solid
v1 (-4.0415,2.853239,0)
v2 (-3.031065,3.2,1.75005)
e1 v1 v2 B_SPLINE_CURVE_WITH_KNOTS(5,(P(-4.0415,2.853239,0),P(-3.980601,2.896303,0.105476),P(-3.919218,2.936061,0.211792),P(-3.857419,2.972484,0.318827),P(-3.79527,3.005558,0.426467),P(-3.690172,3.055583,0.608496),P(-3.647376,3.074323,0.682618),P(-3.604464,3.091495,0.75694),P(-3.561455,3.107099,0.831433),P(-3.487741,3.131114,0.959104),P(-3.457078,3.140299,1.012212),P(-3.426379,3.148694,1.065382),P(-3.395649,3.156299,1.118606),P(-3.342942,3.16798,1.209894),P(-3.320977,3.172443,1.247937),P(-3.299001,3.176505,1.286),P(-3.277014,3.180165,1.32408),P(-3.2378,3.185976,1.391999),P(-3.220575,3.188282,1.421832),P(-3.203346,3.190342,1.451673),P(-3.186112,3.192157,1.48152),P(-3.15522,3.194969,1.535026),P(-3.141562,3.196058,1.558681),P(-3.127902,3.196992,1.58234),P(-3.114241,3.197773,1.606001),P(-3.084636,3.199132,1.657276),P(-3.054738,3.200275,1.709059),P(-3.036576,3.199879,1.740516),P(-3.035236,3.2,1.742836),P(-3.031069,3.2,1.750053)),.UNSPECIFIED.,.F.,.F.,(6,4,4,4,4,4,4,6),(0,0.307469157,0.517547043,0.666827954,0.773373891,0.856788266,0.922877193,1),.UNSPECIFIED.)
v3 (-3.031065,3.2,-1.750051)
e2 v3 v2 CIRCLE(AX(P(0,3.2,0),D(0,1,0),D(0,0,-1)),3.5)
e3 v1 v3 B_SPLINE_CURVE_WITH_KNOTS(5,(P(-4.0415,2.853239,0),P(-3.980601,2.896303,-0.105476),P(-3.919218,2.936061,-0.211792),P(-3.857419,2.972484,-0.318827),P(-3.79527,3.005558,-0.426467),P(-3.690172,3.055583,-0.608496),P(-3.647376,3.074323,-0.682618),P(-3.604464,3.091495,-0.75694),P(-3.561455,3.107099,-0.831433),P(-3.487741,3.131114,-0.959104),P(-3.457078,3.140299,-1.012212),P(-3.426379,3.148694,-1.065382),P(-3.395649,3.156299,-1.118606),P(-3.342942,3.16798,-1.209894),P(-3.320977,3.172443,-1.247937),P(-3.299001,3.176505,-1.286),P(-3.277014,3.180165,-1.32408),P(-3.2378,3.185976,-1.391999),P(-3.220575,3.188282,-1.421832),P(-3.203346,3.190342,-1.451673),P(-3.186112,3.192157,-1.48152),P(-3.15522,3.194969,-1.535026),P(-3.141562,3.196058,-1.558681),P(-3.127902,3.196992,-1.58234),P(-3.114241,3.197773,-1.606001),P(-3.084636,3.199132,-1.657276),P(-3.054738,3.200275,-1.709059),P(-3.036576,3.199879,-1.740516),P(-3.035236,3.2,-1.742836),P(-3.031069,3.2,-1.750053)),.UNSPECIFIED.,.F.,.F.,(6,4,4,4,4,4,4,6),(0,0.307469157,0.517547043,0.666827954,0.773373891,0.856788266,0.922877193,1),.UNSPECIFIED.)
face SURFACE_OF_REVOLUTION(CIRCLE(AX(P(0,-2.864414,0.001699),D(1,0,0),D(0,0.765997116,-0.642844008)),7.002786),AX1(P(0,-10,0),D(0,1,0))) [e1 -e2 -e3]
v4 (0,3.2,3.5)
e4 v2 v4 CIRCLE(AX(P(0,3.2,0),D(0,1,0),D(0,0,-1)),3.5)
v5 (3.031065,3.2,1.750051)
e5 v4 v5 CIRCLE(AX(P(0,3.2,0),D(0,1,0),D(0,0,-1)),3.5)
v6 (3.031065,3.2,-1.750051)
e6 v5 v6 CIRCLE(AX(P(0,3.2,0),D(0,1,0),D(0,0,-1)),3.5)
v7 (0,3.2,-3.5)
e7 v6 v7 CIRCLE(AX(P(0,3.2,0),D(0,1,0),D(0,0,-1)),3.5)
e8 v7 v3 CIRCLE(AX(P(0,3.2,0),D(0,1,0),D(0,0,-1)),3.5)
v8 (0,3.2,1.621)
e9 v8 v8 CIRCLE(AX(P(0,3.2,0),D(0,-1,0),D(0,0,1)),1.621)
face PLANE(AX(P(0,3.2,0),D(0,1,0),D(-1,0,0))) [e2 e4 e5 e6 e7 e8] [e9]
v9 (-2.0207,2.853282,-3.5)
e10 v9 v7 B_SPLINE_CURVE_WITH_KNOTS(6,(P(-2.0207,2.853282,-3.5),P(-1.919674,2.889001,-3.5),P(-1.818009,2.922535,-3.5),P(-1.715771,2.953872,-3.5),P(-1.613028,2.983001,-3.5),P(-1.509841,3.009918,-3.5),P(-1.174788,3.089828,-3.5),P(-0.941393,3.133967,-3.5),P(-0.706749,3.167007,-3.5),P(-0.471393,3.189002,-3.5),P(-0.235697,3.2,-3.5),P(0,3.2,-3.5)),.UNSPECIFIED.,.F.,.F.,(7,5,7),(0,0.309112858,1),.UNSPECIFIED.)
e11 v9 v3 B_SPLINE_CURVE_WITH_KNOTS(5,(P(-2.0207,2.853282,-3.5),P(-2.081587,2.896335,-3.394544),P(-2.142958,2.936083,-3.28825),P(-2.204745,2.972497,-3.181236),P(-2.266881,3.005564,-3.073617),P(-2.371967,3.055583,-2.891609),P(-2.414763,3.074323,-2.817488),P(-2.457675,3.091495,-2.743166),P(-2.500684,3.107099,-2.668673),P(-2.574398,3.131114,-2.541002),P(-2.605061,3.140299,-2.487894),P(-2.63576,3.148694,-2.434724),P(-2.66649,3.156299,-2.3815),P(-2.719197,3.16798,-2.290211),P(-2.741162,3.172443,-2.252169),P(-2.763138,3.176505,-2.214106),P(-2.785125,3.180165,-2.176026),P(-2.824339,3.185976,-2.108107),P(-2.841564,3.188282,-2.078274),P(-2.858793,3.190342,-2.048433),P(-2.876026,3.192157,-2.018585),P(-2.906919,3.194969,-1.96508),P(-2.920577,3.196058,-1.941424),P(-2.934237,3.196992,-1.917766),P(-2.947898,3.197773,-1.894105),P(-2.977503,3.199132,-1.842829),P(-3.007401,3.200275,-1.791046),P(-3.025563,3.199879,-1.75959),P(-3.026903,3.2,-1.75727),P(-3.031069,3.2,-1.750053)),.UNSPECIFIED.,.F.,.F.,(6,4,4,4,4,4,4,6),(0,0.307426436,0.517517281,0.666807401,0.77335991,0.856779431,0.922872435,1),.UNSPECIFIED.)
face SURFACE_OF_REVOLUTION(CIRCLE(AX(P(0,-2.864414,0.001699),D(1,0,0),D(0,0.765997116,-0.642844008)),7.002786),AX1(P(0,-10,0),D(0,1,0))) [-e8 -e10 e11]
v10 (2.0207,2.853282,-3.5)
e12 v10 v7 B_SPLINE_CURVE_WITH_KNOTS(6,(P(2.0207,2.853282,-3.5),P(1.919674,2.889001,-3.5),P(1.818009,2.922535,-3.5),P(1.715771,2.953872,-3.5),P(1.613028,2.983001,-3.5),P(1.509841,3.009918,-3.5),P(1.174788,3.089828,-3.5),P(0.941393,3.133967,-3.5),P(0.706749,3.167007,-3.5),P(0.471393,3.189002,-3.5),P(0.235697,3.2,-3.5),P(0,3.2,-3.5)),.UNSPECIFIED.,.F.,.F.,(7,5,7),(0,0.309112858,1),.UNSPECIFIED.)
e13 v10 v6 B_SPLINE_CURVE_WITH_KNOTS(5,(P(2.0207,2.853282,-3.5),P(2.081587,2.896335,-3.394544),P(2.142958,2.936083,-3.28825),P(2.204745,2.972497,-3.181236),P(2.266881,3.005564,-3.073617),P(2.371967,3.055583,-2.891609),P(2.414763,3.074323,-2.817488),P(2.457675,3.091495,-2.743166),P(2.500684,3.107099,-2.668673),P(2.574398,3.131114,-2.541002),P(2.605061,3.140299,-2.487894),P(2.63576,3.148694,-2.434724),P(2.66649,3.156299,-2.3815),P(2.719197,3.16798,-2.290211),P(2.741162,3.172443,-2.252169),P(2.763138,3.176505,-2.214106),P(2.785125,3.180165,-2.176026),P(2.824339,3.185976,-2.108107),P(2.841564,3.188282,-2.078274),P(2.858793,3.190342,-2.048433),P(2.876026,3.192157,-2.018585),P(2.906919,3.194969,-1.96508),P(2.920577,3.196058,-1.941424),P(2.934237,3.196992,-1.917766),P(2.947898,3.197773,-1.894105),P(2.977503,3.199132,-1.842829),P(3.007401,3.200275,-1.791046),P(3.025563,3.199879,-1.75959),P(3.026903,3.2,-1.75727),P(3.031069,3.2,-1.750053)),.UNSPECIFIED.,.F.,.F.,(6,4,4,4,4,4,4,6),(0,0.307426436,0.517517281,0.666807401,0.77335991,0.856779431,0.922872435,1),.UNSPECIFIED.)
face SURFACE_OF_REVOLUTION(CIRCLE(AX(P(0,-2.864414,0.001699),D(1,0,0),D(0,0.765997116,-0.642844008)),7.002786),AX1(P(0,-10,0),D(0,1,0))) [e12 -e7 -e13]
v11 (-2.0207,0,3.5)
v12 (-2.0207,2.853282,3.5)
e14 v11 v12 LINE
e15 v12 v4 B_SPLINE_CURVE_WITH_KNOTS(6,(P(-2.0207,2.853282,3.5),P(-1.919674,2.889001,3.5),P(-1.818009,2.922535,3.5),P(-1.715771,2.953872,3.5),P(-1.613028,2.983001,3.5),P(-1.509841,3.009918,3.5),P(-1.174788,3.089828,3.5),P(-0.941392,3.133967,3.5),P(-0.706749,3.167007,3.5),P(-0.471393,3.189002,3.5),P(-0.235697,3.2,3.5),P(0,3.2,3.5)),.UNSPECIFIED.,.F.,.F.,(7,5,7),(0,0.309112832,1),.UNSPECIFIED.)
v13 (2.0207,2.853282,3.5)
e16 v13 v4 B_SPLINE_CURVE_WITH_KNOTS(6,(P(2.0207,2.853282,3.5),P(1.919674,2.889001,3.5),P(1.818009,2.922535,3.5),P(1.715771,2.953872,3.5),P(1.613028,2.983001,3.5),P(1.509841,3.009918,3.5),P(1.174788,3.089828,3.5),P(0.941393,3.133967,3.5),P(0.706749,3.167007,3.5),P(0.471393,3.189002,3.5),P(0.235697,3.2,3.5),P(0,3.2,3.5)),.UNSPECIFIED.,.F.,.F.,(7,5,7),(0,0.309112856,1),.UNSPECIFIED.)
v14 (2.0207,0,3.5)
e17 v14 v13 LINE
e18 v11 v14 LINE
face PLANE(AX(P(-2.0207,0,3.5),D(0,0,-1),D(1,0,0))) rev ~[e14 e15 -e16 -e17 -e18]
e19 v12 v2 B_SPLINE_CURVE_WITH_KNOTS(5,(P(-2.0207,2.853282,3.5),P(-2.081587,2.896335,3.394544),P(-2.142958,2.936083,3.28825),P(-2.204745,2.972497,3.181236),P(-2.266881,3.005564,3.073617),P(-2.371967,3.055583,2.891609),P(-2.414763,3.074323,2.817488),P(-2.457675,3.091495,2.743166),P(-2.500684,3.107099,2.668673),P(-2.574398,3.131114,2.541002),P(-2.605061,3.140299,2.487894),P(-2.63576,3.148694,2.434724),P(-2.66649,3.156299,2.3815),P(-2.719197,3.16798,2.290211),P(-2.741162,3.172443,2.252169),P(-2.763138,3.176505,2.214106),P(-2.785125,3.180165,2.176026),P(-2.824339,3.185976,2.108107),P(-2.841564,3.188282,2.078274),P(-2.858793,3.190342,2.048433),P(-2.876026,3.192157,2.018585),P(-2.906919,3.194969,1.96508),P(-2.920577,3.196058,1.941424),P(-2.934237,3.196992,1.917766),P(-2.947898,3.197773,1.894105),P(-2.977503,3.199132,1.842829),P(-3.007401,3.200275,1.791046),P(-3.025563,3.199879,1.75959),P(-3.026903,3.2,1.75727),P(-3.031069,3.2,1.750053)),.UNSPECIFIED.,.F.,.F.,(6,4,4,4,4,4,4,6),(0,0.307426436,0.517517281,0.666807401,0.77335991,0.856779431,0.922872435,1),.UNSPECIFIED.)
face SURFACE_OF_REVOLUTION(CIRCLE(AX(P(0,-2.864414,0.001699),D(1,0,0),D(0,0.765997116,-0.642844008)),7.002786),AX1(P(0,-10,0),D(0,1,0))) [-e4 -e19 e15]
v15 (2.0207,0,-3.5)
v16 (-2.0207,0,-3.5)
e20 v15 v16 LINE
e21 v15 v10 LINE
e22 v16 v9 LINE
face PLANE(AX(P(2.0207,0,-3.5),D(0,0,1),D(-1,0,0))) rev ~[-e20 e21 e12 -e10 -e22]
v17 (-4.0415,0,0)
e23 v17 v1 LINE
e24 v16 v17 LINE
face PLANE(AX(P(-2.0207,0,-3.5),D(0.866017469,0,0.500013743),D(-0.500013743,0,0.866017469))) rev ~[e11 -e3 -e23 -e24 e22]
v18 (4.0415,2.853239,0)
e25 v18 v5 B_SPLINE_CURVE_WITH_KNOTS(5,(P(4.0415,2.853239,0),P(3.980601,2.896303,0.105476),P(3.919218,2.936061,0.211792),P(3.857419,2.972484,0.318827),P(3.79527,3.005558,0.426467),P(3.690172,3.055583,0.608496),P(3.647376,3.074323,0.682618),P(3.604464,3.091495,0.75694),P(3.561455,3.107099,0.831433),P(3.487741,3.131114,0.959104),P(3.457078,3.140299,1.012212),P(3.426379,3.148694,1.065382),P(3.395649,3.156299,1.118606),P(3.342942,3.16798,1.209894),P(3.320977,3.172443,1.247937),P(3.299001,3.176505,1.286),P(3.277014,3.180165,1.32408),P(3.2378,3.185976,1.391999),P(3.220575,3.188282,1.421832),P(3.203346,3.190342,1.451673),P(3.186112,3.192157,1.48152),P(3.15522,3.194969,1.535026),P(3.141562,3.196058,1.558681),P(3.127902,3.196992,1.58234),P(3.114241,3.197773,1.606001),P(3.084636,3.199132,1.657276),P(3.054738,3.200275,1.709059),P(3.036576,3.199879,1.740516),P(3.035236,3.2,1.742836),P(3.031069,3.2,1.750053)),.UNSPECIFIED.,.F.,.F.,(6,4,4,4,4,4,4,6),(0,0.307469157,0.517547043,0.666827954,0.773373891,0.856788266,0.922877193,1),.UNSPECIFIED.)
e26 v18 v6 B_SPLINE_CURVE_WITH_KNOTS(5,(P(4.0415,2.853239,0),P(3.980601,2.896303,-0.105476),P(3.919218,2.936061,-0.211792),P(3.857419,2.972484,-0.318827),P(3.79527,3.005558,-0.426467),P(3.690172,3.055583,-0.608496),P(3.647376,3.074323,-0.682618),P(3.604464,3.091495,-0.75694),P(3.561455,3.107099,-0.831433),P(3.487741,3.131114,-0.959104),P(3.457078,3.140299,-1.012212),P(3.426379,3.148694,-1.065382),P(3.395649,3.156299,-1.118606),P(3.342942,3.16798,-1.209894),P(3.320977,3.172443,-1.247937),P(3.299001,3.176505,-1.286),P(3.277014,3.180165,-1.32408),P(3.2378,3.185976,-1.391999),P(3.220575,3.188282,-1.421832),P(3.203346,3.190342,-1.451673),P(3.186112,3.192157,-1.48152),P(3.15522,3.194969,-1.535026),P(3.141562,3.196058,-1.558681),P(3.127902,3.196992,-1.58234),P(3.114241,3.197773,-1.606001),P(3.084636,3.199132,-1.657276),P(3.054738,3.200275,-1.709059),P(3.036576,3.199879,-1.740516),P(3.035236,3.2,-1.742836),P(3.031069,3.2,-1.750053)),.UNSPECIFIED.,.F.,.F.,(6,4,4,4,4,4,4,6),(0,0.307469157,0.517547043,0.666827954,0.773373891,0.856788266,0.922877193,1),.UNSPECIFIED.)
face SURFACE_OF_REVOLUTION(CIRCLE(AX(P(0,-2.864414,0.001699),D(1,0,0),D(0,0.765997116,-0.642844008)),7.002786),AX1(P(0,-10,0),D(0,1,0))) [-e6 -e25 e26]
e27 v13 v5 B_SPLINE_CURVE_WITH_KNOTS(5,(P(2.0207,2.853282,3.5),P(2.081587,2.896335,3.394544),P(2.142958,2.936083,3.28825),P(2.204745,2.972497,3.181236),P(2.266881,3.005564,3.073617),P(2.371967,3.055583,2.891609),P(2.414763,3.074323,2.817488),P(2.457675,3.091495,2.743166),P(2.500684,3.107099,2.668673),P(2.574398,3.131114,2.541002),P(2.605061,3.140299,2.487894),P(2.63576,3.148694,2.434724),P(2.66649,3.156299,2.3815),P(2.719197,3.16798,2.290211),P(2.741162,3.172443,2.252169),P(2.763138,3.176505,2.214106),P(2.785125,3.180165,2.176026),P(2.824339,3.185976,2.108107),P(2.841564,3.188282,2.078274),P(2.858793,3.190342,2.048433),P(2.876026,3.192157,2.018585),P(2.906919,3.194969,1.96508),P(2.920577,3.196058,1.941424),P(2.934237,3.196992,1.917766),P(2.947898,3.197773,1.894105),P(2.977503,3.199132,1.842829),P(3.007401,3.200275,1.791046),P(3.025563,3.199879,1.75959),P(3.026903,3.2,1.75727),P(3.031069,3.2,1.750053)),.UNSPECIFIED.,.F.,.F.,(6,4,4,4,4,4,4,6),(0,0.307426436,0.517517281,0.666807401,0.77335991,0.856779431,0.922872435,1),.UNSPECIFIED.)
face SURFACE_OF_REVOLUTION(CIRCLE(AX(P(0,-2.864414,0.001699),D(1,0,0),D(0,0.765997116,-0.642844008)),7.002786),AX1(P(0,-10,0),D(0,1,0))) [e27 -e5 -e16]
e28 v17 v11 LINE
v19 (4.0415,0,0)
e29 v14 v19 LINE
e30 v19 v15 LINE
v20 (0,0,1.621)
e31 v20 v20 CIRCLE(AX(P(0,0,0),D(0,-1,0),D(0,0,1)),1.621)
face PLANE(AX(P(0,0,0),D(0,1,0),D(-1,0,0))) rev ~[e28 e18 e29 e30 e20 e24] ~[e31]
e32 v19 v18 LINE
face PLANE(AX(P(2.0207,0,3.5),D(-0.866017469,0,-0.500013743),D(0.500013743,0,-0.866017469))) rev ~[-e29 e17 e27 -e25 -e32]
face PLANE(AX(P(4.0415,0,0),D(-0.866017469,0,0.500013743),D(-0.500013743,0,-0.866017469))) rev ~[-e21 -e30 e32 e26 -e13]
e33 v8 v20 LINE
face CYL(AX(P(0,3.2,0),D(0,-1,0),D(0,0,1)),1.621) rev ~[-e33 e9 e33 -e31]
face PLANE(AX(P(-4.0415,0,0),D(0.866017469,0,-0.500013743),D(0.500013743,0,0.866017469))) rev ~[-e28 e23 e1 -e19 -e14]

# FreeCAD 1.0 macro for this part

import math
import FreeCAD as App
import Part
import Sketcher

V = App.Vector
Q = App.Units.Quantity


def add_polygon(sketch, points):
    """Adds a closed chain of lines whose ends are joined by coincident constraints."""
    first, n = sketch.GeometryCount, len(points)
    for a, b in zip(points, points[1:] + points[:1]):
        sketch.addGeometry(Part.LineSegment(App.Vector(*a, 0), App.Vector(*b, 0)), False)
    for i in range(n):
        sketch.addConstraint(Sketcher.Constraint("Coincident", first + i, 2, first + (i + 1) % n, 1))

doc = App.newDocument("Part")
params = doc.addObject("Spreadsheet::Sheet", "Params")
for row, (alias, value) in enumerate([
    ("pad1_length", "3.2 mm"),
    ("hole_diameter", "3.242 mm"),
    ("sketch3_height", "1 mm"),
    ("groove_angle", "360 deg"),
], start=1):
    params.set(f"A{row}", alias)
    params.set(f"B{row}", "=" + value)
    params.setAlias(f"B{row}", alias)

body = doc.addObject("PartDesign::Body", "Body")

# Sketch on XZ plane
sketch1 = body.newObject("Sketcher::SketchObject", "Sketch")
sketch1.AttachmentSupport = (doc.getObject("XZ_Plane"), [""])
sketch1.MapMode = "FlatFace"
add_polygon(sketch1, [(-2, -3.5), (-4, 0), (-2, 3.5), (2, 3.5), (4, 0), (2, -3.5)])  # lines 0-5
sketch1.addConstraint([
    Sketcher.Constraint("Horizontal", 2),
    Sketcher.Constraint("Horizontal", 5),
    Sketcher.Constraint("Symmetric", 0, 2, 3, 2, -1, 1),
    Sketcher.Constraint("Symmetric", 1, 2, 4, 2, -1, 1),
    Sketcher.Constraint("PointOnObject", 0, 2, -1),
    Sketcher.Constraint("Parallel", 0, 3),
    Sketcher.Constraint("Vertical", 2, 2, 4, 2),
    Sketcher.Constraint("DistanceY", 4, 2, 2, 2, Q("7 mm")),
    Sketcher.Constraint("Angle", 0, Q("120.001 deg")),
    Sketcher.Constraint("DistanceX", 2, 1, 2, 2, Q("4.0414 mm")),
])
pad1 = body.newObject("PartDesign::Pad", "Pad")
pad1.Profile = sketch1
pad1.setExpression("Length", "Params.pad1_length")
pad1.Reversed = True

# Sketch on XZ plane
sketch2 = body.newObject("Sketcher::SketchObject", "Sketch001")
sketch2.AttachmentSupport = (doc.getObject("XZ_Plane"), [""])
sketch2.MapMode = "FlatFace"
sketch2.AttachmentOffset = App.Placement(V(0, 0, -3.2), App.Rotation())
sketch2.addGeometry(Part.Circle(V(0, 0, 0), V(0, 0, 1), 1.6), False)
sketch2.addConstraint([
    Sketcher.Constraint("Coincident", 0, 3, -1, 1),
    Sketcher.Constraint("Diameter", 0, Q("3.242 mm")),
])
doc.recompute()
hole = body.newObject("PartDesign::Hole", "Hole")
hole.Profile = sketch2
hole.ThreadType = "None"
hole.setExpression("Diameter", "Params.hole_diameter")
hole.DepthType = "ThroughAll"
hole.Reversed = True

# Sketch on YZ plane
sketch3 = body.newObject("Sketcher::SketchObject", "Sketch002")
sketch3.AttachmentSupport = (doc.getObject("YZ_Plane"), [""])
sketch3.MapMode = "FlatFace"
sketch3.addGeometry([
    Part.ArcOfCircle(Part.Circle(V(-2.9, 0, 0), V(0, 0, 1), 7), math.radians(-40), math.radians(-30)),
    Part.LineSegment(V(2.5, -4.5, 0), V(3.2, -4.5, 0)),
    Part.LineSegment(V(3.2, -4.5, 0), V(3.2, -3.5, 0)),
], False)
sketch3.addConstraint([
    Sketcher.Constraint("Coincident", 0, 1, 1, 1),
    Sketcher.Constraint("Coincident", 1, 2, 2, 1),
    Sketcher.Constraint("Coincident", 2, 2, 0, 2),
    Sketcher.Constraint("Horizontal", 1),
    Sketcher.Constraint("Vertical", 2),
    Sketcher.Constraint("DistanceY", 2, 1, 2, 2, Q("1 mm")),
    Sketcher.Constraint("DistanceY", 2, 2, -1, 1, Q("3.5 mm")),
    Sketcher.Constraint("DistanceX", -1, 1, 1, 2, Q("3.2 mm")),
    Sketcher.Constraint("Radius", 0, Q("7.0028 mm")),
    Sketcher.Constraint("DistanceX", 1, 1, 1, 2, Q("0.7003 mm")),
])
sketch3.setExpression("Constraints[5]", "Params.sketch3_height")
groove = body.newObject("PartDesign::Groove", "Groove")
groove.Profile = sketch3
groove.ReferenceAxis = (sketch3, ["H_Axis"])
groove.setExpression("Angle", "Params.groove_angle")

doc.recompute()
